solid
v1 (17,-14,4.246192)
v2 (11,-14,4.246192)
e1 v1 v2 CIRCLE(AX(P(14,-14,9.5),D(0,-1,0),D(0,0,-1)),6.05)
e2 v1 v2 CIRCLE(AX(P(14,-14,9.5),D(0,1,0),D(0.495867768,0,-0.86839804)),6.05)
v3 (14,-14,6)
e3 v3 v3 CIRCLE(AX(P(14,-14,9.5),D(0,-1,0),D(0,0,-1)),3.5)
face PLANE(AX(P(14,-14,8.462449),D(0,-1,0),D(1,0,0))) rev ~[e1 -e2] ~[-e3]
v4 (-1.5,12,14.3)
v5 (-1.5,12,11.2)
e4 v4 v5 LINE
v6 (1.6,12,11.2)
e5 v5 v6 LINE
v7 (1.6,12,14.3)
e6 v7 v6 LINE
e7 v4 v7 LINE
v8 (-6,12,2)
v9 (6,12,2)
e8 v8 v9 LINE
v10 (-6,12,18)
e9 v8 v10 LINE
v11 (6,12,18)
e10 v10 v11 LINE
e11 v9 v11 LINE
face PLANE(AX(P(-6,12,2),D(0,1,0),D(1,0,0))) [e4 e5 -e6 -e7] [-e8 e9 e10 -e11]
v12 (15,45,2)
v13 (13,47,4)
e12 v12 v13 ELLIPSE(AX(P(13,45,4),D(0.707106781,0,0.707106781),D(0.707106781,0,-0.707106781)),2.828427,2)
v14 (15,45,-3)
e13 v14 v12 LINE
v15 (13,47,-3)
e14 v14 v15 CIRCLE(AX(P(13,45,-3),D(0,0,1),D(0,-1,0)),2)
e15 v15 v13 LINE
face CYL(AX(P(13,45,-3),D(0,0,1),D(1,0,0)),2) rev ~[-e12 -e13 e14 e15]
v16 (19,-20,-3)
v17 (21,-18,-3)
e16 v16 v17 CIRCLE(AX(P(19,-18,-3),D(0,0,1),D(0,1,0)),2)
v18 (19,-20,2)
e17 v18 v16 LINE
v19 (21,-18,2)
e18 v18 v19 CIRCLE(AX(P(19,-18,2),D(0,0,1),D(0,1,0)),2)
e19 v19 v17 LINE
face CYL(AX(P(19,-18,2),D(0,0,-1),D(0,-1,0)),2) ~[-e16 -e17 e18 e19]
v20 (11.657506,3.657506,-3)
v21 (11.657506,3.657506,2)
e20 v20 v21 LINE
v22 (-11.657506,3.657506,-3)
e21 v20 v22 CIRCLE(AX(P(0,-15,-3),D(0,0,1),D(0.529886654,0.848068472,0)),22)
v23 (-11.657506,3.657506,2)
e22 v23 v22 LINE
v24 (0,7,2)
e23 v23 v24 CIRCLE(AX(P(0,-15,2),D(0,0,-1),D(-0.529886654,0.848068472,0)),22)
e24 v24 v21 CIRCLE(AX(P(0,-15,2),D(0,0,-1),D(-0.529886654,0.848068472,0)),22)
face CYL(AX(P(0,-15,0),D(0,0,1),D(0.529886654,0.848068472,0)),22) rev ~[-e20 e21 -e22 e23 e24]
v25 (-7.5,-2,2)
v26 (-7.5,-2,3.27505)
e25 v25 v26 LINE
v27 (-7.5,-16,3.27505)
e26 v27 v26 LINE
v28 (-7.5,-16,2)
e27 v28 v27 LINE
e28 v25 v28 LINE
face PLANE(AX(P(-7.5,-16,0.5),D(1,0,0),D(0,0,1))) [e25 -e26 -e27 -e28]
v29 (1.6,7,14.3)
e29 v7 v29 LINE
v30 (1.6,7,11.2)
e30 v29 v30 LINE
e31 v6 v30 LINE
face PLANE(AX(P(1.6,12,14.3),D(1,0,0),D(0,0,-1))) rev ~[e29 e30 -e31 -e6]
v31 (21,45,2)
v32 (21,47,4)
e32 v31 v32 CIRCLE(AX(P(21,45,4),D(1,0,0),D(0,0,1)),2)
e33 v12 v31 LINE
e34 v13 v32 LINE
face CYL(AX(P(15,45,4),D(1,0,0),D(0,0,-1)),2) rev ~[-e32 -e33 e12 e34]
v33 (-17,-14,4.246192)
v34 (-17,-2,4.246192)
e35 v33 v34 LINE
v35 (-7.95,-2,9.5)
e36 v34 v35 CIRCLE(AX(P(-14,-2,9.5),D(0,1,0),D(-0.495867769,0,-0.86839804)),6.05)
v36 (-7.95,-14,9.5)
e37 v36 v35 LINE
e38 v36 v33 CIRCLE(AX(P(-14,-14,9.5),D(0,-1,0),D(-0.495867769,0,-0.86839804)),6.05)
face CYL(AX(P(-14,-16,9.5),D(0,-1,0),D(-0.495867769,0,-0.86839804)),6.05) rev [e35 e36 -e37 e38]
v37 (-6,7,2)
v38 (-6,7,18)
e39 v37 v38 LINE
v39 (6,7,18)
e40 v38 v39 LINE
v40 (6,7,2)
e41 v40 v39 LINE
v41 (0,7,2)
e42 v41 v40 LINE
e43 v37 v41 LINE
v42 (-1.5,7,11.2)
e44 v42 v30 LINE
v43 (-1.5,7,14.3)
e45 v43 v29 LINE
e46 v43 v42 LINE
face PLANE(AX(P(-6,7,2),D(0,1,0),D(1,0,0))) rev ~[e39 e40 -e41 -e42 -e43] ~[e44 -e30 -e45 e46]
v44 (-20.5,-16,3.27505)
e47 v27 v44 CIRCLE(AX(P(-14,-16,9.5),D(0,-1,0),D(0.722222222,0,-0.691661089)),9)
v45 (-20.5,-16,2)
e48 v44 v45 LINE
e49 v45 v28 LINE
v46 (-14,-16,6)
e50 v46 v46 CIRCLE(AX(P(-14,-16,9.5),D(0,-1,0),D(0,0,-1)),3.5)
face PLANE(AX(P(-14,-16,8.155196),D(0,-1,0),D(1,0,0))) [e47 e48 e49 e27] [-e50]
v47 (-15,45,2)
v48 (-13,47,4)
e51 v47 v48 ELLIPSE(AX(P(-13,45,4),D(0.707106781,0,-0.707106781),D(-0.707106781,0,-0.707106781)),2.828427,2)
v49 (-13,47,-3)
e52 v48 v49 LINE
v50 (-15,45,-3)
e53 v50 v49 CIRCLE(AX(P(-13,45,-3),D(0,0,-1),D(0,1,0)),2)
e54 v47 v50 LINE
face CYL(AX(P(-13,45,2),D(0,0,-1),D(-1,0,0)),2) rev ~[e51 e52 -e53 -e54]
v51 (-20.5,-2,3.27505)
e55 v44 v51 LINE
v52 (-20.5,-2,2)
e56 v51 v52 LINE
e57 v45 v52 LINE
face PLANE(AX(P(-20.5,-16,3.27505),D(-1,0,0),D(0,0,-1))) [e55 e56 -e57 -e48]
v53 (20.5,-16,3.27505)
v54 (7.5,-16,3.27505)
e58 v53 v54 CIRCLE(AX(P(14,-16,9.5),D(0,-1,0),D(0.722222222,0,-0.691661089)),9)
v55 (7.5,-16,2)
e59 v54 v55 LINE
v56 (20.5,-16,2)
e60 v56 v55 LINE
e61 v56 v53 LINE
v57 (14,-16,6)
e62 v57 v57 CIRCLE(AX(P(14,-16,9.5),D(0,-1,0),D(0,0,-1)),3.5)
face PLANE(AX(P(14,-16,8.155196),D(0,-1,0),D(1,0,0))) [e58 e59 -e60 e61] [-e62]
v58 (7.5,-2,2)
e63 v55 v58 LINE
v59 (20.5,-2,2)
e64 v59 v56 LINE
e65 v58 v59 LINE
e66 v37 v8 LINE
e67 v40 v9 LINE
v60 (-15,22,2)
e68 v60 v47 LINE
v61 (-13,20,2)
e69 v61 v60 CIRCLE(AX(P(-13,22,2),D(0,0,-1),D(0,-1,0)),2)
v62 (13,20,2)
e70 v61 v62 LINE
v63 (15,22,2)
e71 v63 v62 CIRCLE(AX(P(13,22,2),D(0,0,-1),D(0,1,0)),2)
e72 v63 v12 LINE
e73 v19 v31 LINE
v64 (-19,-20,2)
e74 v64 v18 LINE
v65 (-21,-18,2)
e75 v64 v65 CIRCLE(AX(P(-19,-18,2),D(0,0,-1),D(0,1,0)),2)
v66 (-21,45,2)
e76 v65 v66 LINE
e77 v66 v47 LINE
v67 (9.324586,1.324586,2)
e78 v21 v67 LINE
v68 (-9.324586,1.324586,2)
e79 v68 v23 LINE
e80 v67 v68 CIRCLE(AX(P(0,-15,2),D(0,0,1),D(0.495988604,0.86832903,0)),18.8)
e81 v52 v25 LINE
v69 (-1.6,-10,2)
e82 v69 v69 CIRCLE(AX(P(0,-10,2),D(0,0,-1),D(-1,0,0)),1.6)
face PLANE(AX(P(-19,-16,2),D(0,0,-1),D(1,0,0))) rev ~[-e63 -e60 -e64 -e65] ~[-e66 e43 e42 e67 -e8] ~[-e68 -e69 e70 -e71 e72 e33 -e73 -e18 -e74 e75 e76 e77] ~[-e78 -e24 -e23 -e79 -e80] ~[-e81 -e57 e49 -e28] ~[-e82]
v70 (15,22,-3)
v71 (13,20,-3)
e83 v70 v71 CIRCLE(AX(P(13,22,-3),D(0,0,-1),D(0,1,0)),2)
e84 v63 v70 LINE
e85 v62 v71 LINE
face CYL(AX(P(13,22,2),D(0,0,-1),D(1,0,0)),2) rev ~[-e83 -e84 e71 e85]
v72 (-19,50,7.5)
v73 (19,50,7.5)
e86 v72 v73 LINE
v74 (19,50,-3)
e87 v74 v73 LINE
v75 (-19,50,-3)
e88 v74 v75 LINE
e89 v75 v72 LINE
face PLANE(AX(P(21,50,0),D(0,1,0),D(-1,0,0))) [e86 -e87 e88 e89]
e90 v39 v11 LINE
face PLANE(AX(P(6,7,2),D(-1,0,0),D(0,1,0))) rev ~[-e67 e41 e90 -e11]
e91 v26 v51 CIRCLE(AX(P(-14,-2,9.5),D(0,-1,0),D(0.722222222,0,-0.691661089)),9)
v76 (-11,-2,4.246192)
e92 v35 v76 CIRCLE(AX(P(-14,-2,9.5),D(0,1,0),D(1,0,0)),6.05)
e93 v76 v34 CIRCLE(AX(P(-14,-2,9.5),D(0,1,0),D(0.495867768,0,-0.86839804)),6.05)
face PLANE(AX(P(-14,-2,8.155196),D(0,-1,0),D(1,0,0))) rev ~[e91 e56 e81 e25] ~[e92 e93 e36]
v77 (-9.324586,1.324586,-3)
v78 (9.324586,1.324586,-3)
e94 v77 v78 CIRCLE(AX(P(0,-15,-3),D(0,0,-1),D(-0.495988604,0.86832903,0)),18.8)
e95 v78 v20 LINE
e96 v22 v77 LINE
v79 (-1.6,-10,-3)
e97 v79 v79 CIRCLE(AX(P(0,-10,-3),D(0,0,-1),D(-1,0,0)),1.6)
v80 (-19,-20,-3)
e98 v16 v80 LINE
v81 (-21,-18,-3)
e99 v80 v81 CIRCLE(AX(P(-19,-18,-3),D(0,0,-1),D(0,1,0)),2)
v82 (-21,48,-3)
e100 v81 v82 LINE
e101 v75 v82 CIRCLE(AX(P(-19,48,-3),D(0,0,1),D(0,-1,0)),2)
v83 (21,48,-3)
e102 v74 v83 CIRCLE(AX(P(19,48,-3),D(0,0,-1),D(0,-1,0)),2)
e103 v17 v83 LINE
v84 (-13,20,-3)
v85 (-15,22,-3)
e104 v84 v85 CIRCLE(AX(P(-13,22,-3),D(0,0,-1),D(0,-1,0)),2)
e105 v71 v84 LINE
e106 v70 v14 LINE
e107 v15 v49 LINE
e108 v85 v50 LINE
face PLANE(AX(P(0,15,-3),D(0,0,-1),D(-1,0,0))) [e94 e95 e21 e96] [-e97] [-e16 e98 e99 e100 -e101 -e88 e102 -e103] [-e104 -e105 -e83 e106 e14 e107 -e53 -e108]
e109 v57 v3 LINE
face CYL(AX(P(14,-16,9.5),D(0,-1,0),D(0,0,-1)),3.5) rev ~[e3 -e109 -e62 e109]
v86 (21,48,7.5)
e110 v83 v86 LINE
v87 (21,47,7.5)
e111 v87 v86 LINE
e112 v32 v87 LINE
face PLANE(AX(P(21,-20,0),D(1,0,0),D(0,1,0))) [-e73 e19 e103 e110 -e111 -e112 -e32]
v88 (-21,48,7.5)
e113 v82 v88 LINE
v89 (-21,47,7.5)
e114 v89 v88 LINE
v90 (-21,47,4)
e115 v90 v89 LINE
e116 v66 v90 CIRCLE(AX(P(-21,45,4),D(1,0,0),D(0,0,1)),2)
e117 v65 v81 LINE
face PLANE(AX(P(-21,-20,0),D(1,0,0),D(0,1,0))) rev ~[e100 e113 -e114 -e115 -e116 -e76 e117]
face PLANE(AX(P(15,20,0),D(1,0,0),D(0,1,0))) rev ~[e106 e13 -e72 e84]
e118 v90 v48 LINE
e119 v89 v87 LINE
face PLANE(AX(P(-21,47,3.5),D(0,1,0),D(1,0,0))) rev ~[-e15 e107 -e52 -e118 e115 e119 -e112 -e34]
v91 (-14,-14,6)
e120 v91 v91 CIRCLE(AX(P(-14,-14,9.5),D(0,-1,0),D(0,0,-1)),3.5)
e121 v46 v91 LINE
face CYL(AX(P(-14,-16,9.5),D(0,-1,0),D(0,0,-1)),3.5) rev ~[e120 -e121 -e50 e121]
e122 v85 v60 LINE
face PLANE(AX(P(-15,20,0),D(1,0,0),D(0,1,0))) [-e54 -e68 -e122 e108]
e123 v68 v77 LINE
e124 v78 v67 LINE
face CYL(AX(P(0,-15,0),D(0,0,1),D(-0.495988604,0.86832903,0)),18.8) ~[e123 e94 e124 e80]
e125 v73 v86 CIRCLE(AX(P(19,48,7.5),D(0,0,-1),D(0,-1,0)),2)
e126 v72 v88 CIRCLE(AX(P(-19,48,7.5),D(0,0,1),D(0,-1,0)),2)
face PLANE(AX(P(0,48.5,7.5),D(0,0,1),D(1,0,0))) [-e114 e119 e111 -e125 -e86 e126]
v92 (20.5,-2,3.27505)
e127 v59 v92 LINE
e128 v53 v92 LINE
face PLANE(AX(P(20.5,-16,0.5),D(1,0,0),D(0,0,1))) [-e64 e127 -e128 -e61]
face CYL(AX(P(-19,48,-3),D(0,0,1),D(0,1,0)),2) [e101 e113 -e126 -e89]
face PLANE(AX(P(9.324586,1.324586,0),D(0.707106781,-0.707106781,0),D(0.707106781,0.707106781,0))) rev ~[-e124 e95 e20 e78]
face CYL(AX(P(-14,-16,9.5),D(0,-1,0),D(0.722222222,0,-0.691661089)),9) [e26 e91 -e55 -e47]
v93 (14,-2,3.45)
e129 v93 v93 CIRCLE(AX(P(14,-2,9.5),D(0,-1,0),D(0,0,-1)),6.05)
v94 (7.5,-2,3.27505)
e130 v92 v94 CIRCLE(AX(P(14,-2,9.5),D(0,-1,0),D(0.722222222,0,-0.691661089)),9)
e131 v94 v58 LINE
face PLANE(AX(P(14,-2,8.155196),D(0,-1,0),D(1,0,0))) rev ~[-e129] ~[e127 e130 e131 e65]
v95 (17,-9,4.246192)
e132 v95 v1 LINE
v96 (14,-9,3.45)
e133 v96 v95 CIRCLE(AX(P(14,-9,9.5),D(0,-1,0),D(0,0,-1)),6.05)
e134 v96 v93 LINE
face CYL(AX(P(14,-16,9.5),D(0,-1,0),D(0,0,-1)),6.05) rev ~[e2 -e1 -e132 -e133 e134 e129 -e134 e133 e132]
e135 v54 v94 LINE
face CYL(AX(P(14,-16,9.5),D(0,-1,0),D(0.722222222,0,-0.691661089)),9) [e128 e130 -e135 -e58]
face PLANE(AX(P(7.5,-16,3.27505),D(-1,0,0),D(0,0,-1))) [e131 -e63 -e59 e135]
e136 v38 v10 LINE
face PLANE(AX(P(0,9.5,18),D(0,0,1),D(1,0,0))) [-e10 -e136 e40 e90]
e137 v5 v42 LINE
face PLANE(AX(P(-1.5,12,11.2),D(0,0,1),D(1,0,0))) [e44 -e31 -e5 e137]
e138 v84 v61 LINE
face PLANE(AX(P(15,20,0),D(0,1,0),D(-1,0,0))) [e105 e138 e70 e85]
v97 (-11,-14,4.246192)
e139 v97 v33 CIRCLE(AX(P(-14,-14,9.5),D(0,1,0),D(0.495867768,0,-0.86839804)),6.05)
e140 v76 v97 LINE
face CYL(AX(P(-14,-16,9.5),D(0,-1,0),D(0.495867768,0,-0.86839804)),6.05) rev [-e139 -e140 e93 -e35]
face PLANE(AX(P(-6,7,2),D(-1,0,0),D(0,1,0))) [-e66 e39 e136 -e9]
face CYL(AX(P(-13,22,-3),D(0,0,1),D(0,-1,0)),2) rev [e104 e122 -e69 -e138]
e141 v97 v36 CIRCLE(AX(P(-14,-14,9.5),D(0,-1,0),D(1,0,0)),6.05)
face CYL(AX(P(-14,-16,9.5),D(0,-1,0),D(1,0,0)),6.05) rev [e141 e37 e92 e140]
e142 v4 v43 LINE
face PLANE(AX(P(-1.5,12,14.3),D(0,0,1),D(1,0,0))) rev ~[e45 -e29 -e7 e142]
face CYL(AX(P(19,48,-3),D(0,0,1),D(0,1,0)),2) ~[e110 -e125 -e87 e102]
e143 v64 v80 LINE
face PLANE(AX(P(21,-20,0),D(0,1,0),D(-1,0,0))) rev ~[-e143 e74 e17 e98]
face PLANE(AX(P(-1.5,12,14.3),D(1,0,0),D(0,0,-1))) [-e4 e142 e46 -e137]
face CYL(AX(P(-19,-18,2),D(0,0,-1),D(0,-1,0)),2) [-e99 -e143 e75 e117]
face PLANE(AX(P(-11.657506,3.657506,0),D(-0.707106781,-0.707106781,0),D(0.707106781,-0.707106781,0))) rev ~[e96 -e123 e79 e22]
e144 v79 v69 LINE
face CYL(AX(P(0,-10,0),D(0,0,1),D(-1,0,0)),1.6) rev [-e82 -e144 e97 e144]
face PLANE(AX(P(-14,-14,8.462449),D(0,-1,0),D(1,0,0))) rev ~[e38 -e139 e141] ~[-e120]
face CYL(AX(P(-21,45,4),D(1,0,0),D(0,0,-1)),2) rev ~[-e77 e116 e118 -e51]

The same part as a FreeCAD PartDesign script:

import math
import FreeCAD as App
import Part
import Sketcher


def edges_at(feature, points):
    """Names of the edges that pass closest to the given points."""
    edges = feature.Shape.Edges
    near = lambda p: min(range(len(edges)), key=lambda i: edges[i].distToShape(Part.Vertex(*p))[0])
    return sorted({f"Edge{near(p) + 1}" for p in points})


def add_polygon(sketch, points):
    """Adds a closed chain of lines whose ends are joined by coincident constraints."""
    first, n = sketch.GeometryCount, len(points)
    for a, b in zip(points, points[1:] + points[:1]):
        sketch.addGeometry(Part.LineSegment(App.Vector(*a, 0), App.Vector(*b, 0)), False)
    for i in range(n):
        sketch.addConstraint(Sketcher.Constraint("Coincident", first + i, 2, first + (i + 1) % n, 1))

doc = App.newDocument("Part")
body = doc.addObject("PartDesign::Body", "Body")

sketch1 = body.newObject("Sketcher::SketchObject", "Sketch")
sketch1.AttachmentSupport = (doc.getObject("XY_Plane"), [""])
sketch1.MapMode = "FlatFace"
add_polygon(sketch1, [(-21, 20), (-21, -20), (21, -20), (21, 20)])
sketch1.addConstraint([
    Sketcher.Constraint("Vertical", 0),
    Sketcher.Constraint("Horizontal", 1),
    Sketcher.Constraint("Vertical", 2),
    Sketcher.Constraint("Horizontal", 3),
    Sketcher.Constraint("Symmetric", 0, 2, 2, 2, -1, 1),
    Sketcher.Constraint("DistanceX", 1, 1, 1, 2, 42.0),
    Sketcher.Constraint("DistanceY", 0, 2, 0, 1, 40.0),
])
pad1 = body.newObject("PartDesign::Pad", "Pad")
pad1.Profile = sketch1
pad1.Length = 2

sketch2 = body.newObject("Sketcher::SketchObject", "Sketch001")
sketch2.AttachmentSupport = (doc.getObject("XY_Plane"), [""])
sketch2.MapMode = "FlatFace"
sketch2.AttachmentOffset = App.Placement(App.Vector(0, 0, 2), App.Rotation())
add_polygon(sketch2, [(-17, 12), (-17, 8), (-11, 8), (-11, 12)])
sketch2.addConstraint([
    Sketcher.Constraint("Vertical", 0),
    Sketcher.Constraint("Horizontal", 1),
    Sketcher.Constraint("Vertical", 2),
    Sketcher.Constraint("Horizontal", 3),
    Sketcher.Constraint("DistanceX", 1, 1, 1, 2, 6.0),
    Sketcher.Constraint("DistanceY", 0, 2, 0, 1, 4.0),
    Sketcher.Constraint("DistanceX", 0, 2, -1, 1, 17.0),
    Sketcher.Constraint("DistanceY", -1, 1, 0, 2, 8.0),
])
pad2 = body.newObject("PartDesign::Pad", "Pad001")
pad2.Profile = sketch2
pad2.Length = 3

sketch3 = body.newObject("Sketcher::SketchObject", "Sketch002")
sketch3.AttachmentSupport = (doc.getObject("XZ_Plane"), [""])
sketch3.MapMode = "FlatFace"
sketch3.AttachmentOffset = App.Placement(App.Vector(0, 0, -12), App.Rotation())
sketch3.addGeometry([
    Part.Circle(App.Vector(-14, 6.6, 0), App.Vector(0, 0, 1), 3.5),
    Part.Circle(App.Vector(-14, 6.6, 0), App.Vector(0, 0, 1), 1.6),
], False)
sketch3.addConstraint([
    Sketcher.Constraint("Coincident", 1, 3, 0, 3),
    Sketcher.Constraint("Diameter", 0, 7.0),
    Sketcher.Constraint("Diameter", 1, 3.2),
    Sketcher.Constraint("DistanceX", 0, 3, -1, 1, 14.0),
    Sketcher.Constraint("DistanceY", -1, 1, 0, 3, 6.6),
])
pad3 = body.newObject("PartDesign::Pad", "Pad002")
pad3.Profile = sketch3
pad3.Length = 4
doc.recompute()

mirrored = body.newObject("PartDesign::Mirrored", "Mirrored")
mirrored.Originals = [pad2, pad3]
mirrored.MirrorPlane = (doc.getObject("YZ_Plane"), [""])
body.Tip = mirrored
doc.recompute()

datumplane = body.newObject("PartDesign::Plane", "DatumPlane")
datumplane.AttachmentSupport = (doc.getObject("XZ_Plane"), [""])
datumplane.MapMode = "FlatFace"
datumplane.AttachmentOffset = App.Placement(App.Vector(0, 0, -3), App.Rotation())
mirrored2 = body.newObject("PartDesign::Mirrored", "Mirrored001")
mirrored2.Originals = [pad2, pad3]
mirrored2.MirrorPlane = (datumplane, [""])
body.Tip = mirrored2

sketch4 = body.newObject("Sketcher::SketchObject", "Sketch003")
sketch4.AttachmentSupport = (doc.getObject("XY_Plane"), [""])
sketch4.MapMode = "FlatFace"
sketch4.AttachmentOffset = App.Placement(App.Vector(0, 0, 2), App.Rotation())
add_polygon(sketch4, [(17, -6), (17, -2), (11, -2), (11, -6)])
sketch4.addConstraint([
    Sketcher.Constraint("Vertical", 0),
    Sketcher.Constraint("Horizontal", 1),
    Sketcher.Constraint("Vertical", 2),
    Sketcher.Constraint("Horizontal", 3),
    Sketcher.Constraint("DistanceX", 1, 2, 1, 1, 6.0),
    Sketcher.Constraint("DistanceY", 0, 1, 0, 2, 4.0),
    Sketcher.Constraint("DistanceX", -1, 1, 0, 2, 17.0),
    Sketcher.Constraint("DistanceY", 0, 2, -1, 1, 2.0),
])
pad4 = body.newObject("PartDesign::Pad", "Pad003")
pad4.Profile = sketch4
pad4.Length = 3

sketch5 = body.newObject("Sketcher::SketchObject", "Sketch004")
sketch5.AttachmentSupport = (doc.getObject("XZ_Plane"), [""])
sketch5.MapMode = "FlatFace"
sketch5.AttachmentOffset = App.Placement(App.Vector(0, 0, 6), App.Rotation())
sketch5.addGeometry([
    Part.Circle(App.Vector(14, 6.6, 0), App.Vector(0, 0, 1), 3.5),
    Part.Circle(App.Vector(14, 6.6, 0), App.Vector(0, 0, 1), 1.6),
], False)
sketch5.addConstraint([
    Sketcher.Constraint("Coincident", 1, 3, 0, 3),
    Sketcher.Constraint("Diameter", 0, 7.0),
    Sketcher.Constraint("Diameter", 1, 3.2),
    Sketcher.Constraint("DistanceX", -1, 1, 0, 3, 14.0),
    Sketcher.Constraint("DistanceY", -1, 1, 0, 3, 6.6),
])
pad5 = body.newObject("PartDesign::Pad", "Pad004")
pad5.Profile = sketch5
pad5.Length = 4
pad5.Reversed = True

sketch6 = body.newObject("Sketcher::SketchObject", "Sketch005")
sketch6.AttachmentSupport = (doc.getObject("XY_Plane"), [""])
sketch6.MapMode = "FlatFace"
sketch6.AttachmentOffset = App.Placement(App.Vector(0, 0, 2), App.Rotation())
sketch6.addGeometry([
    Part.ArcOfCircle(Part.Circle(App.Vector(0, -15, 0), App.Vector(0, 0, 1), 18.8), math.radians(60), math.radians(120)),
    Part.LineSegment(App.Vector(9.3, 1.3, 0), App.Vector(11.7, 3.7, 0)),
    Part.ArcOfCircle(Part.Circle(App.Vector(0, -15, 0), App.Vector(0, 0, 1), 22), math.radians(58), math.radians(122)),
    Part.LineSegment(App.Vector(-11.7, 3.7, 0), App.Vector(-9.3, 1.3, 0)),
], False)
sketch6.addConstraint([
    Sketcher.Constraint("Coincident", 0, 1, 1, 1),
    Sketcher.Constraint("Coincident", 1, 2, 2, 1),
    Sketcher.Constraint("Coincident", 2, 2, 3, 1),
    Sketcher.Constraint("Coincident", 3, 2, 0, 2),
    Sketcher.Constraint("Coincident", 2, 3, 0, 3),
    Sketcher.Constraint("Symmetric", 1, 2, 2, 2, -2),
    Sketcher.Constraint("Perpendicular", 1, 3),
    Sketcher.Constraint("Horizontal", 0, 1, 3, 2),
    Sketcher.Constraint("Radius", 2, 22.0),
    Sketcher.Constraint("Radius", 0, 18.8),
    Sketcher.Constraint("DistanceY", 0, 3, -1, 1, 15.0),
    Sketcher.Constraint("DistanceX", 3, 2, 0, 1, 18.649172),
])
pocket1 = body.newObject("PartDesign::Pocket", "Pocket")
pocket1.Profile = sketch6
pocket1.Length = 2

sketch7 = body.newObject("Sketcher::SketchObject", "Sketch006")
sketch7.AttachmentSupport = (doc.getObject("XY_Plane"), [""])
sketch7.MapMode = "FlatFace"
sketch7.addGeometry(Part.Circle(App.Vector(0, -10, 0), App.Vector(0, 0, 1), 1.6), False)
sketch7.addConstraint([
    Sketcher.Constraint("PointOnObject", 0, 3, -2),
    Sketcher.Constraint("Diameter", 0, 3.2),
    Sketcher.Constraint("DistanceY", 0, 3, -1, 1, 10.0),
])
pocket2 = body.newObject("PartDesign::Pocket", "Pocket001")
pocket2.Profile = sketch7
pocket2.Length = 2
pocket2.Reversed = True

sketch8 = body.newObject("Sketcher::SketchObject", "Sketch007")
sketch8.AttachmentSupport = (doc.getObject("XZ_Plane"), [""])
sketch8.MapMode = "FlatFace"
sketch8.AttachmentOffset = App.Placement(App.Vector(0, 0, -20), App.Rotation())
add_polygon(sketch8, [(-21, 0), (-21, 2), (-15, 2), (-15, 0)])
add_polygon(sketch8, [(15, 0), (15, 2), (21, 2), (21, 0)])
sketch8.addConstraint([
    Sketcher.Constraint("Vertical", 0),
    Sketcher.Constraint("Horizontal", 1),
    Sketcher.Constraint("Vertical", 2),
    Sketcher.Constraint("Horizontal", 3),
    Sketcher.Constraint("Vertical", 4),
    Sketcher.Constraint("Horizontal", 5),
    Sketcher.Constraint("Vertical", 6),
    Sketcher.Constraint("Horizontal", 7),
    Sketcher.Constraint("Symmetric", 3, 2, 6, 2, -1, 1),
    Sketcher.Constraint("Symmetric", 1, 2, 4, 2, -2),
    Sketcher.Constraint("PointOnObject", 2, 2, -1),
    Sketcher.Constraint("DistanceX", 1, 1, 1, 2, 6.0),
    Sketcher.Constraint("DistanceY", 0, 1, 0, 2, 2.0),
    Sketcher.Constraint("DistanceX", 0, 2, -1, 1, 21.0),
])
pad6 = body.newObject("PartDesign::Pad", "Pad005")
pad6.Profile = sketch8
pad6.Length = 30
pad6.Reversed = True

sketch9 = body.newObject("Sketcher::SketchObject", "Sketch008")
sketch9.AttachmentSupport = (doc.getObject("XZ_Plane"), [""])
sketch9.MapMode = "FlatFace"
sketch9.AttachmentOffset = App.Placement(App.Vector(0, 0, -50), App.Rotation())
add_polygon(sketch9, [(-21, 0), (-21, 3.5), (21, 3.5), (21, 0)])
sketch9.addConstraint([
    Sketcher.Constraint("Vertical", 0),
    Sketcher.Constraint("Horizontal", 1),
    Sketcher.Constraint("Vertical", 2),
    Sketcher.Constraint("Horizontal", 3),
    Sketcher.Constraint("Symmetric", 2, 2, 3, 2, -1, 1),
    Sketcher.Constraint("DistanceX", 1, 1, 1, 2, 42.0),
    Sketcher.Constraint("DistanceY", 0, 1, 0, 2, 3.5),
])
pad7 = body.newObject("PartDesign::Pad", "Pad006")
pad7.Profile = sketch9
pad7.Length = 3

sketch10 = body.newObject("Sketcher::SketchObject", "Sketch009")
sketch10.AttachmentSupport = (doc.getObject("XZ_Plane"), [""])
sketch10.MapMode = "FlatFace"
sketch10.AttachmentOffset = App.Placement(App.Vector(0, 0, 6), App.Rotation())
sketch10.addGeometry([
    Part.LineSegment(App.Vector(-11, 2, 0), App.Vector(-11, 4.8, 0)),
    Part.ArcOfCircle(Part.Circle(App.Vector(-14, 6.6, 0), App.Vector(0, 0, 1), 3.5), math.radians(-31), math.radians(211)),
    Part.LineSegment(App.Vector(-17, 4.8, 0), App.Vector(-17, 2, 0)),
    Part.LineSegment(App.Vector(-17, 2, 0), App.Vector(-11, 2, 0)),
    Part.Circle(App.Vector(-14, 6.6, 0), App.Vector(0, 0, 1), 1.6),
    Part.LineSegment(App.Vector(11, 4.8, 0), App.Vector(11, 2, 0)),
    Part.LineSegment(App.Vector(11, 2, 0), App.Vector(17, 2, 0)),
    Part.LineSegment(App.Vector(17, 2, 0), App.Vector(17, 4.8, 0)),
    Part.ArcOfCircle(Part.Circle(App.Vector(14, 6.6, 0), App.Vector(0, 0, 1), 3.5), math.radians(-31), math.radians(211)),
    Part.Circle(App.Vector(14, 6.6, 0), App.Vector(0, 0, 1), 1.6),
], False)
sketch10.addConstraint([
    Sketcher.Constraint("Coincident", 0, 2, 1, 1),
    Sketcher.Constraint("Coincident", 1, 2, 2, 1),
    Sketcher.Constraint("Coincident", 2, 2, 3, 1),
    Sketcher.Constraint("Coincident", 3, 2, 0, 1),
    Sketcher.Constraint("Coincident", 5, 2, 6, 1),
    Sketcher.Constraint("Coincident", 6, 2, 7, 1),
    Sketcher.Constraint("Coincident", 7, 2, 8, 1),
    Sketcher.Constraint("Coincident", 8, 2, 5, 1),
    Sketcher.Constraint("Vertical", 0),
    Sketcher.Constraint("Vertical", 2),
    Sketcher.Constraint("Horizontal", 3),
    Sketcher.Constraint("Vertical", 5),
    Sketcher.Constraint("Horizontal", 6),
    Sketcher.Constraint("Vertical", 7),
    Sketcher.Constraint("Coincident", 4, 3, 1, 3),
    Sketcher.Constraint("Coincident", 9, 3, 8, 3),
    Sketcher.Constraint("Equal", 1, 8),
    Sketcher.Constraint("Equal", 4, 9),
    Sketcher.Constraint("Symmetric", 1, 3, 8, 3, -2),
    Sketcher.Constraint("Symmetric", 3, 2, 5, 2, -2),
    Sketcher.Constraint("Horizontal", 0, 2, 1, 2),
    Sketcher.Constraint("Horizontal", 1, 2, 7, 2),
    Sketcher.Constraint("Diameter", 4, 3.2),
    Sketcher.Constraint("Radius", 1, 3.5),
    Sketcher.Constraint("DistanceX", 3, 1, 3, 2, 6.0),
    Sketcher.Constraint("DistanceX", 1, 3, -1, 1, 14.0),
    Sketcher.Constraint("DistanceY", -1, 1, 2, 2, 2.0),
    Sketcher.Constraint("DistanceY", -1, 1, 1, 3, 6.6),
])
pad8 = body.newObject("PartDesign::Pad", "Pad007")
pad8.Profile = sketch10
pad8.Length = 10

sketch11 = body.newObject("Sketcher::SketchObject", "Sketch010")
sketch11.AttachmentSupport = (doc.getObject("XZ_Plane"), [""])
sketch11.MapMode = "FlatFace"
sketch11.AttachmentOffset = App.Placement(App.Vector(0, 0, 2), App.Rotation())
sketch11.addGeometry([
    Part.LineSegment(App.Vector(11, 2, 0), App.Vector(11, 4.8, 0)),
    Part.ArcOfCircle(Part.Circle(App.Vector(14, 6.6, 0), App.Vector(0, 0, 1), 3.5), math.radians(-31), math.radians(211)),
    Part.LineSegment(App.Vector(17, 4.8, 0), App.Vector(17, 2, 0)),
    Part.LineSegment(App.Vector(17, 2, 0), App.Vector(11, 2, 0)),
    Part.Circle(App.Vector(14, 6.6, 0), App.Vector(0, 0, 1), 1.6),
    Part.LineSegment(App.Vector(-11, 4.8, 0), App.Vector(-11, 2, 0)),
    Part.LineSegment(App.Vector(-11, 2, 0), App.Vector(-17, 2, 0)),
    Part.LineSegment(App.Vector(-17, 2, 0), App.Vector(-17, 4.8, 0)),
    Part.ArcOfCircle(Part.Circle(App.Vector(-14, 6.6, 0), App.Vector(0, 0, 1), 3.5), math.radians(-31), math.radians(211)),
    Part.Circle(App.Vector(-14, 6.6, 0), App.Vector(0, 0, 1), 1.6),
], False)
sketch11.addConstraint([
    Sketcher.Constraint("Coincident", 0, 2, 1, 2),
    Sketcher.Constraint("Coincident", 1, 1, 2, 1),
    Sketcher.Constraint("Coincident", 2, 2, 3, 1),
    Sketcher.Constraint("Coincident", 3, 2, 0, 1),
    Sketcher.Constraint("Coincident", 5, 2, 6, 1),
    Sketcher.Constraint("Coincident", 6, 2, 7, 1),
    Sketcher.Constraint("Coincident", 7, 2, 8, 2),
    Sketcher.Constraint("Coincident", 8, 1, 5, 1),
    Sketcher.Constraint("Vertical", 0),
    Sketcher.Constraint("Vertical", 2),
    Sketcher.Constraint("Horizontal", 3),
    Sketcher.Constraint("Vertical", 5),
    Sketcher.Constraint("Horizontal", 6),
    Sketcher.Constraint("Vertical", 7),
    Sketcher.Constraint("Coincident", 4, 3, 1, 3),
    Sketcher.Constraint("Coincident", 9, 3, 8, 3),
    Sketcher.Constraint("Equal", 1, 8),
    Sketcher.Constraint("Equal", 4, 9),
    Sketcher.Constraint("Symmetric", 1, 3, 8, 3, -2),
    Sketcher.Constraint("Symmetric", 3, 2, 5, 2, -2),
    Sketcher.Constraint("Horizontal", 0, 2, 1, 1),
    Sketcher.Constraint("Horizontal", 1, 1, 7, 2),
    Sketcher.Constraint("Diameter", 4, 3.2),
    Sketcher.Constraint("Radius", 1, 3.5),
    Sketcher.Constraint("DistanceX", 3, 2, 3, 1, 6.0),
    Sketcher.Constraint("DistanceX", -1, 1, 1, 3, 14.0),
    Sketcher.Constraint("DistanceY", -1, 1, 2, 2, 2.0),
    Sketcher.Constraint("DistanceY", -1, 1, 1, 3, 6.6),
])
pocket3 = body.newObject("PartDesign::Pocket", "Pocket002")
pocket3.Profile = sketch11
pocket3.Length = 7
pocket3.Reversed = True

sketch12 = body.newObject("Sketcher::SketchObject", "Sketch011")
sketch12.AttachmentSupport = (doc.getObject("XZ_Plane"), [""])
sketch12.MapMode = "FlatFace"
sketch12.AttachmentOffset = App.Placement(App.Vector(0, 0, 16), App.Rotation())
sketch12.addGeometry([
    Part.LineSegment(App.Vector(-19, 2, 0), App.Vector(-9, 2, 0)),
    Part.LineSegment(App.Vector(-9, 2, 0), App.Vector(-9, 3.9, 0)),
    Part.ArcOfCircle(Part.Circle(App.Vector(-14, 9.5, 0), App.Vector(0, 0, 1), 7.5), math.radians(-48), math.radians(228)),
    Part.LineSegment(App.Vector(-19, 3.9, 0), App.Vector(-19, 2, 0)),
    Part.ArcOfCircle(Part.Circle(App.Vector(-14, 9.5, 0), App.Vector(0, 0, 1), 6), math.radians(0), math.radians(240)),
    Part.ArcOfCircle(Part.Circle(App.Vector(-14, 9.5, 0), App.Vector(0, 0, 1), 6.1), math.radians(-60), math.radians(0)),
    Part.ArcOfCircle(Part.Circle(App.Vector(-14, 9.5, 0), App.Vector(0, 0, 1), 6.1), math.radians(-120), math.radians(-60)),
    Part.ArcOfCircle(Part.Circle(App.Vector(14, 9.5, 0), App.Vector(0, 0, 1), 7.5), math.radians(-48), math.radians(228)),
    Part.LineSegment(App.Vector(9, 3.9, 0), App.Vector(9, 2, 0)),
    Part.LineSegment(App.Vector(9, 2, 0), App.Vector(19, 2, 0)),
    Part.LineSegment(App.Vector(19, 2, 0), App.Vector(19, 3.9, 0)),
    Part.Circle(App.Vector(14, 9.5, 0), App.Vector(0, 0, 1), 6),
], False)
sketch12.addConstraint([
    Sketcher.Constraint("Coincident", 0, 2, 1, 1),
    Sketcher.Constraint("Coincident", 1, 2, 2, 1),
    Sketcher.Constraint("Coincident", 2, 2, 3, 1),
    Sketcher.Constraint("Coincident", 3, 2, 0, 1),
    Sketcher.Constraint("Tangent", 4, 1, 5, 2),
    Sketcher.Constraint("Tangent", 5, 1, 6, 2),
    Sketcher.Constraint("Tangent", 6, 1, 4, 2),
    Sketcher.Constraint("Coincident", 7, 2, 8, 1),
    Sketcher.Constraint("Coincident", 8, 2, 9, 1),
    Sketcher.Constraint("Coincident", 9, 2, 10, 1),
    Sketcher.Constraint("Coincident", 10, 2, 7, 1),
    Sketcher.Constraint("Horizontal", 0),
    Sketcher.Constraint("Vertical", 1),
    Sketcher.Constraint("Vertical", 3),
    Sketcher.Constraint("Vertical", 8),
    Sketcher.Constraint("Horizontal", 9),
    Sketcher.Constraint("Vertical", 10),
    Sketcher.Constraint("Coincident", 4, 3, 2, 3),
    Sketcher.Constraint("Coincident", 11, 3, 7, 3),
    Sketcher.Constraint("Equal", 2, 7),
    Sketcher.Constraint("Equal", 6, 11),
    Sketcher.Constraint("Symmetric", 2, 3, 7, 3, -2),
    Sketcher.Constraint("Symmetric", 0, 2, 8, 2, -2),
    Sketcher.Constraint("Horizontal", 1, 2, 2, 2),
    Sketcher.Constraint("Horizontal", 11, 3, 4, 1),
    Sketcher.Constraint("Horizontal", 5, 1, 6, 1),
    Sketcher.Constraint("Horizontal", 7, 2, 10, 2),
    Sketcher.Constraint("Diameter", 11, 12.1),
    Sketcher.Constraint("Radius", 2, 7.5),
    Sketcher.Constraint("DistanceX", 0, 1, 0, 2, 10.0),
    Sketcher.Constraint("DistanceX", 2, 3, -1, 1, 14.0),
    Sketcher.Constraint("DistanceY", -1, 1, 0, 2, 2.0),
    Sketcher.Constraint("DistanceX", 5, 1, -1, 1, 11.0),
    Sketcher.Constraint("DistanceY", -1, 1, 2, 3, 9.5),
])
pad9 = body.newObject("PartDesign::Pad", "Pad008")
pad9.Profile = sketch12
pad9.Length = 14
pad9.Reversed = True

sketch13 = body.newObject("Sketcher::SketchObject", "Sketch012")
sketch13.AttachmentSupport = (doc.getObject("XZ_Plane"), [""])
sketch13.MapMode = "FlatFace"
sketch13.AttachmentOffset = App.Placement(App.Vector(0, 0, -12), App.Rotation())
sketch13.addGeometry([
    Part.LineSegment(App.Vector(11, 2, 0), App.Vector(11, 4.8, 0)),
    Part.ArcOfCircle(Part.Circle(App.Vector(14, 6.6, 0), App.Vector(0, 0, 1), 3.5), math.radians(-31), math.radians(211)),
    Part.LineSegment(App.Vector(17, 4.8, 0), App.Vector(17, 2, 0)),
    Part.LineSegment(App.Vector(17, 2, 0), App.Vector(11, 2, 0)),
    Part.Circle(App.Vector(14, 6.6, 0), App.Vector(0, 0, 1), 1.6),
    Part.LineSegment(App.Vector(-11, 4.8, 0), App.Vector(-11, 2, 0)),
    Part.LineSegment(App.Vector(-11, 2, 0), App.Vector(-17, 2, 0)),
    Part.LineSegment(App.Vector(-17, 2, 0), App.Vector(-17, 4.8, 0)),
    Part.ArcOfCircle(Part.Circle(App.Vector(-14, 6.6, 0), App.Vector(0, 0, 1), 3.5), math.radians(-31), math.radians(211)),
    Part.Circle(App.Vector(-14, 6.6, 0), App.Vector(0, 0, 1), 1.6),
], False)
sketch13.addConstraint([
    Sketcher.Constraint("Coincident", 0, 2, 1, 2),
    Sketcher.Constraint("Coincident", 1, 1, 2, 1),
    Sketcher.Constraint("Coincident", 2, 2, 3, 1),
    Sketcher.Constraint("Coincident", 3, 2, 0, 1),
    Sketcher.Constraint("Coincident", 5, 2, 6, 1),
    Sketcher.Constraint("Coincident", 6, 2, 7, 1),
    Sketcher.Constraint("Coincident", 7, 2, 8, 2),
    Sketcher.Constraint("Coincident", 8, 1, 5, 1),
    Sketcher.Constraint("Vertical", 0),
    Sketcher.Constraint("Vertical", 2),
    Sketcher.Constraint("Horizontal", 3),
    Sketcher.Constraint("Vertical", 5),
    Sketcher.Constraint("Horizontal", 6),
    Sketcher.Constraint("Vertical", 7),
    Sketcher.Constraint("Coincident", 4, 3, 1, 3),
    Sketcher.Constraint("Coincident", 9, 3, 8, 3),
    Sketcher.Constraint("Equal", 1, 8),
    Sketcher.Constraint("Equal", 4, 9),
    Sketcher.Constraint("Symmetric", 1, 3, 8, 3, -2),
    Sketcher.Constraint("Symmetric", 3, 2, 5, 2, -2),
    Sketcher.Constraint("Horizontal", 0, 2, 1, 1),
    Sketcher.Constraint("Horizontal", 1, 1, 7, 2),
    Sketcher.Constraint("Diameter", 4, 3.2),
    Sketcher.Constraint("Radius", 1, 3.5),
    Sketcher.Constraint("DistanceX", 3, 2, 3, 1, 6.0),
    Sketcher.Constraint("DistanceX", -1, 1, 1, 3, 14.0),
    Sketcher.Constraint("DistanceY", -1, 1, 2, 2, 2.0),
    Sketcher.Constraint("DistanceY", -1, 1, 1, 3, 6.6),
])
pocket4 = body.newObject("PartDesign::Pocket", "Pocket003")
pocket4.Profile = sketch13
pocket4.Length = 10
pocket4.Reversed = True

sketch14 = body.newObject("Sketcher::SketchObject", "Sketch013")
sketch14.AttachmentSupport = (doc.getObject("XZ_Plane"), [""])
sketch14.MapMode = "FlatFace"
sketch14.AttachmentOffset = App.Placement(App.Vector(0, 0, 9), App.Rotation())
sketch14.addGeometry([
    Part.LineSegment(App.Vector(11, 4.2, 0), App.Vector(11, 4.8, 0)),
    Part.ArcOfCircle(Part.Circle(App.Vector(14, 6.6, 0), App.Vector(0, 0, 1), 3.5), math.radians(-31), math.radians(211)),
    Part.LineSegment(App.Vector(17, 4.8, 0), App.Vector(17, 4.2, 0)),
    Part.ArcOfCircle(Part.Circle(App.Vector(14, 9.5, 0), App.Vector(0, 0, 1), 6.1), math.radians(-120), math.radians(-60)),
    Part.LineSegment(App.Vector(-11, 4.8, 0), App.Vector(-11, 4.2, 0)),
    Part.ArcOfCircle(Part.Circle(App.Vector(-14, 9.5, 0), App.Vector(0, 0, 1), 6.1), math.radians(-120), math.radians(-60)),
    Part.LineSegment(App.Vector(-17, 4.2, 0), App.Vector(-17, 4.8, 0)),
    Part.ArcOfCircle(Part.Circle(App.Vector(-14, 6.6, 0), App.Vector(0, 0, 1), 3.5), math.radians(-31), math.radians(211)),
], False)
sketch14.addConstraint([
    Sketcher.Constraint("Coincident", 0, 2, 1, 2),
    Sketcher.Constraint("Coincident", 1, 1, 2, 1),
    Sketcher.Constraint("Coincident", 2, 2, 3, 2),
    Sketcher.Constraint("Coincident", 3, 1, 0, 1),
    Sketcher.Constraint("Coincident", 4, 2, 5, 2),
    Sketcher.Constraint("Coincident", 5, 1, 6, 1),
    Sketcher.Constraint("Coincident", 6, 2, 7, 2),
    Sketcher.Constraint("Coincident", 7, 1, 4, 1),
    Sketcher.Constraint("Vertical", 0),
    Sketcher.Constraint("Vertical", 2),
    Sketcher.Constraint("Vertical", 4),
    Sketcher.Constraint("Vertical", 6),
    Sketcher.Constraint("Equal", 3, 5),
    Sketcher.Constraint("Equal", 1, 7),
    Sketcher.Constraint("Symmetric", 3, 3, 5, 3, -2),
    Sketcher.Constraint("Symmetric", 1, 3, 7, 3, -2),
    Sketcher.Constraint("Horizontal", 0, 2, 1, 1),
    Sketcher.Constraint("Horizontal", 2, 2, 3, 1),
    Sketcher.Constraint("Horizontal", 3, 1, 4, 2),
    Sketcher.Constraint("Horizontal", 4, 2, 5, 1),
    Sketcher.Constraint("Radius", 1, 3.5),
    Sketcher.Constraint("Radius", 3, 6.05),
    Sketcher.Constraint("DistanceX", -1, 1, 1, 3, 14.0),
    Sketcher.Constraint("DistanceX", -1, 1, 0, 2, 11.0),
    Sketcher.Constraint("DistanceY", -1, 1, 1, 3, 6.6),
    Sketcher.Constraint("DistanceY", -1, 1, 3, 3, 9.5),
])
pocket5 = body.newObject("PartDesign::Pocket", "Pocket004")
pocket5.Profile = sketch14
pocket5.Length = 22
pocket5.Reversed = True

sketch15 = body.newObject("Sketcher::SketchObject", "Sketch014")
sketch15.AttachmentSupport = (doc.getObject("XZ_Plane"), [""])
sketch15.MapMode = "FlatFace"
sketch15.AttachmentOffset = App.Placement(App.Vector(0, 0, 16), App.Rotation())
sketch15.addGeometry([
    Part.LineSegment(App.Vector(-19, 2, 0), App.Vector(-9, 2, 0)),
    Part.LineSegment(App.Vector(-9, 2, 0), App.Vector(-9, 3.9, 0)),
    Part.ArcOfCircle(Part.Circle(App.Vector(-14, 9.5, 0), App.Vector(0, 0, 1), 7.5), math.radians(-48), math.radians(228)),
    Part.LineSegment(App.Vector(-19, 3.9, 0), App.Vector(-19, 2, 0)),
    Part.LineSegment(App.Vector(9, 3.9, 0), App.Vector(9, 2, 0)),
    Part.LineSegment(App.Vector(9, 2, 0), App.Vector(19, 2, 0)),
    Part.LineSegment(App.Vector(19, 2, 0), App.Vector(19, 3.9, 0)),
    Part.ArcOfCircle(Part.Circle(App.Vector(14, 9.5, 0), App.Vector(0, 0, 1), 7.5), math.radians(-48), math.radians(228)),
], False)
sketch15.addConstraint([
    Sketcher.Constraint("Coincident", 0, 2, 1, 1),
    Sketcher.Constraint("Coincident", 1, 2, 2, 1),
    Sketcher.Constraint("Coincident", 2, 2, 3, 1),
    Sketcher.Constraint("Coincident", 3, 2, 0, 1),
    Sketcher.Constraint("Coincident", 4, 2, 5, 1),
    Sketcher.Constraint("Coincident", 5, 2, 6, 1),
    Sketcher.Constraint("Coincident", 6, 2, 7, 1),
    Sketcher.Constraint("Coincident", 7, 2, 4, 1),
    Sketcher.Constraint("Horizontal", 0),
    Sketcher.Constraint("Vertical", 1),
    Sketcher.Constraint("Vertical", 3),
    Sketcher.Constraint("Vertical", 4),
    Sketcher.Constraint("Horizontal", 5),
    Sketcher.Constraint("Vertical", 6),
    Sketcher.Constraint("Equal", 2, 7),
    Sketcher.Constraint("Symmetric", 2, 3, 7, 3, -2),
    Sketcher.Constraint("Symmetric", 0, 2, 4, 2, -2),
    Sketcher.Constraint("Horizontal", 1, 2, 2, 2),
    Sketcher.Constraint("Horizontal", 2, 2, 6, 2),
    Sketcher.Constraint("Radius", 2, 7.5),
    Sketcher.Constraint("DistanceX", 0, 1, 0, 2, 10.0),
    Sketcher.Constraint("DistanceX", 2, 3, -1, 1, 14.0),
    Sketcher.Constraint("DistanceY", -1, 1, 0, 2, 2.0),
    Sketcher.Constraint("DistanceY", -1, 1, 2, 3, 9.5),
])
pocket6 = body.newObject("PartDesign::Pocket", "Pocket005")
pocket6.Profile = sketch15
pocket6.Length = 2

sketch16 = body.newObject("Sketcher::SketchObject", "Sketch015")
sketch16.AttachmentSupport = (doc.getObject("XZ_Plane"), [""])
sketch16.MapMode = "FlatFace"
sketch16.AttachmentOffset = App.Placement(App.Vector(0, 0, 16), App.Rotation())
sketch16.addGeometry([
    Part.LineSegment(App.Vector(9, 3.9, 0), App.Vector(9, 2, 0)),
    Part.LineSegment(App.Vector(9, 2, 0), App.Vector(19, 2, 0)),
    Part.LineSegment(App.Vector(19, 2, 0), App.Vector(19, 3.9, 0)),
    Part.ArcOfCircle(Part.Circle(App.Vector(14, 9.5, 0), App.Vector(0, 0, 1), 7.5), math.radians(-48), math.radians(228)),
    Part.Circle(App.Vector(14, 9.5, 0), App.Vector(0, 0, 1), 3.5),
    Part.LineSegment(App.Vector(-19, 3.9, 0), App.Vector(-19, 2, 0)),
    Part.LineSegment(App.Vector(-19, 2, 0), App.Vector(-9, 2, 0)),
    Part.LineSegment(App.Vector(-9, 2, 0), App.Vector(-9, 3.9, 0)),
    Part.ArcOfCircle(Part.Circle(App.Vector(-14, 9.5, 0), App.Vector(0, 0, 1), 7.5), math.radians(-48), math.radians(228)),
    Part.Circle(App.Vector(-14, 9.5, 0), App.Vector(0, 0, 1), 3.5),
], False)
sketch16.addConstraint([
    Sketcher.Constraint("Coincident", 0, 2, 1, 1),
    Sketcher.Constraint("Coincident", 1, 2, 2, 1),
    Sketcher.Constraint("Coincident", 2, 2, 3, 1),
    Sketcher.Constraint("Coincident", 3, 2, 0, 1),
    Sketcher.Constraint("Coincident", 5, 2, 6, 1),
    Sketcher.Constraint("Coincident", 6, 2, 7, 1),
    Sketcher.Constraint("Coincident", 7, 2, 8, 1),
    Sketcher.Constraint("Coincident", 8, 2, 5, 1),
    Sketcher.Constraint("Vertical", 0),
    Sketcher.Constraint("Horizontal", 1),
    Sketcher.Constraint("Vertical", 2),
    Sketcher.Constraint("Vertical", 5),
    Sketcher.Constraint("Horizontal", 6),
    Sketcher.Constraint("Vertical", 7),
    Sketcher.Constraint("Coincident", 4, 3, 3, 3),
    Sketcher.Constraint("Coincident", 9, 3, 8, 3),
    Sketcher.Constraint("Equal", 3, 8),
    Sketcher.Constraint("Equal", 4, 9),
    Sketcher.Constraint("Symmetric", 3, 3, 8, 3, -2),
    Sketcher.Constraint("Symmetric", 1, 2, 5, 2, -2),
    Sketcher.Constraint("Horizontal", 2, 2, 3, 2),
    Sketcher.Constraint("Horizontal", 3, 2, 7, 2),
    Sketcher.Constraint("Diameter", 4, 7.0),
    Sketcher.Constraint("Radius", 3, 7.5),
    Sketcher.Constraint("DistanceX", 1, 1, 1, 2, 10.0),
    Sketcher.Constraint("DistanceX", -1, 1, 3, 3, 14.0),
    Sketcher.Constraint("DistanceY", -1, 1, 0, 2, 2.0),
    Sketcher.Constraint("DistanceY", -1, 1, 3, 3, 9.5),
])
pad10 = body.newObject("PartDesign::Pad", "Pad009")
pad10.Profile = sketch16
pad10.Length = 2
pad10.Reversed = True

sketch17 = body.newObject("Sketcher::SketchObject", "Sketch016")
sketch17.AttachmentSupport = (doc.getObject("XY_Plane"), [""])
sketch17.MapMode = "FlatFace"
sketch17.AttachmentOffset = App.Placement(App.Vector(0, 0, 3.5), App.Rotation())
add_polygon(sketch17, [(-21, 50), (-21, 47), (21, 47), (21, 50)])
sketch17.addConstraint([
    Sketcher.Constraint("Vertical", 0),
    Sketcher.Constraint("Horizontal", 1),
    Sketcher.Constraint("Vertical", 2),
    Sketcher.Constraint("Horizontal", 3),
    Sketcher.Constraint("DistanceX", 1, 1, 1, 2, 42.0),
    Sketcher.Constraint("DistanceY", 0, 2, 0, 1, 3.0),
    Sketcher.Constraint("DistanceX", 0, 2, -1, 1, 21.0),
    Sketcher.Constraint("DistanceY", -1, 1, 0, 2, 47.0),
])
pad11 = body.newObject("PartDesign::Pad", "Pad010")
pad11.Profile = sketch17
pad11.Length = 4

sketch18 = body.newObject("Sketcher::SketchObject", "Sketch017")
sketch18.AttachmentSupport = (doc.getObject("XY_Plane"), [""])
sketch18.MapMode = "FlatFace"
add_polygon(sketch18, [(21, 50), (21, -20), (-21, -20), (-21, 50)])
sketch18.addGeometry(Part.Circle(App.Vector(0, -10, 0), App.Vector(0, 0, 1), 1.6), False)
sketch18.addGeometry(Part.ArcOfCircle(Part.Circle(App.Vector(0, -15, 0), App.Vector(0, 0, 1), 22), math.radians(58), math.radians(122)), False)
sketch18.addGeometry(Part.LineSegment(App.Vector(-11.7, 3.7, 0), App.Vector(-9.3, 1.3, 0)), False)
sketch18.addGeometry(Part.ArcOfCircle(Part.Circle(App.Vector(0, -15, 0), App.Vector(0, 0, 1), 18.8), math.radians(60), math.radians(120)), False)
sketch18.addGeometry(Part.LineSegment(App.Vector(9.3, 1.3, 0), App.Vector(11.7, 3.7, 0)), False)
add_polygon(sketch18, [(-15, 20), (15, 20), (15, 47), (-15, 47)])
sketch18.addConstraint([
    Sketcher.Constraint("Coincident", 5, 2, 6, 1),
    Sketcher.Constraint("Coincident", 6, 2, 7, 2),
    Sketcher.Constraint("Coincident", 7, 1, 8, 1),
    Sketcher.Constraint("Coincident", 8, 2, 5, 1),
    Sketcher.Constraint("Vertical", 0),
    Sketcher.Constraint("Horizontal", 1),
    Sketcher.Constraint("Vertical", 2),
    Sketcher.Constraint("Horizontal", 3),
    Sketcher.Constraint("Horizontal", 9),
    Sketcher.Constraint("Vertical", 10),
    Sketcher.Constraint("Horizontal", 11),
    Sketcher.Constraint("Vertical", 12),
    Sketcher.Constraint("Coincident", 7, 3, 5, 3),
    Sketcher.Constraint("Symmetric", 6, 2, 7, 1, -2),
    Sketcher.Constraint("PointOnObject", 4, 3, -2),
    Sketcher.Constraint("Perpendicular", 6, 8),
    Sketcher.Constraint("Horizontal", 5, 2, 8, 2),
    Sketcher.Constraint("Radius", 5, 22.0),
    Sketcher.Constraint("Diameter", 4, 3.2),
    Sketcher.Constraint("Radius", 7, 18.8),
    Sketcher.Constraint("DistanceX", 1, 2, 1, 1, 42.0),
    Sketcher.Constraint("DistanceX", 9, 1, 9, 2, 30.0),
    Sketcher.Constraint("DistanceY", 0, 2, 0, 1, 70.0),
    Sketcher.Constraint("DistanceY", 10, 1, 10, 2, 27.0),
    Sketcher.Constraint("DistanceY", 4, 3, -1, 1, 10.0),
    Sketcher.Constraint("DistanceY", 5, 3, -1, 1, 15.0),
    Sketcher.Constraint("DistanceX", -1, 1, 0, 2, 21.0),
    Sketcher.Constraint("DistanceY", 0, 2, -1, 1, 20.0),
    Sketcher.Constraint("DistanceX", -1, 1, 9, 2, 15.0),
    Sketcher.Constraint("DistanceY", -1, 1, 9, 2, 20.0),
    Sketcher.Constraint("DistanceX", 6, 2, 7, 1, 18.649172),
])
pad12 = body.newObject("PartDesign::Pad", "Pad011")
pad12.Profile = sketch18
pad12.Length = 3
pad12.Reversed = True

sketch19 = body.newObject("Sketcher::SketchObject", "Sketch018")
sketch19.AttachmentSupport = (doc.getObject("XZ_Plane"), [""])
sketch19.MapMode = "FlatFace"
sketch19.AttachmentOffset = App.Placement(App.Vector(0, 0, 16), App.Rotation())
sketch19.addGeometry([
    Part.LineSegment(App.Vector(-20.5, 3.3, 0), App.Vector(-20.5, 0.5, 0)),
    Part.LineSegment(App.Vector(-20.5, 0.5, 0), App.Vector(-7.5, 0.5, 0)),
    Part.LineSegment(App.Vector(-7.5, 0.5, 0), App.Vector(-7.5, 3.3, 0)),
    Part.ArcOfCircle(Part.Circle(App.Vector(-14, 9.5, 0), App.Vector(0, 0, 1), 9), math.radians(-44), math.radians(224)),
    Part.LineSegment(App.Vector(-19, 2, 0), App.Vector(-19, 3.9, 0)),
    Part.ArcOfCircle(Part.Circle(App.Vector(-14, 9.5, 0), App.Vector(0, 0, 1), 7.5), math.radians(-48), math.radians(228)),
    Part.LineSegment(App.Vector(-9, 3.9, 0), App.Vector(-9, 2, 0)),
    Part.LineSegment(App.Vector(-9, 2, 0), App.Vector(-19, 2, 0)),
    Part.LineSegment(App.Vector(7.5, 3.3, 0), App.Vector(7.5, 0.5, 0)),
    Part.LineSegment(App.Vector(7.5, 0.5, 0), App.Vector(20.5, 0.5, 0)),
    Part.LineSegment(App.Vector(20.5, 0.5, 0), App.Vector(20.5, 3.3, 0)),
    Part.ArcOfCircle(Part.Circle(App.Vector(14, 9.5, 0), App.Vector(0, 0, 1), 9), math.radians(-44), math.radians(224)),
    Part.LineSegment(App.Vector(9, 2, 0), App.Vector(9, 3.9, 0)),
    Part.ArcOfCircle(Part.Circle(App.Vector(14, 9.5, 0), App.Vector(0, 0, 1), 7.5), math.radians(-48), math.radians(228)),
    Part.LineSegment(App.Vector(19, 3.9, 0), App.Vector(19, 2, 0)),
    Part.LineSegment(App.Vector(19, 2, 0), App.Vector(9, 2, 0)),
], False)
sketch19.addConstraint([
    Sketcher.Constraint("Coincident", 0, 2, 1, 1),
    Sketcher.Constraint("Coincident", 1, 2, 2, 1),
    Sketcher.Constraint("Coincident", 2, 2, 3, 1),
    Sketcher.Constraint("Coincident", 3, 2, 0, 1),
    Sketcher.Constraint("Coincident", 4, 2, 5, 2),
    Sketcher.Constraint("Coincident", 5, 1, 6, 1),
    Sketcher.Constraint("Coincident", 6, 2, 7, 1),
    Sketcher.Constraint("Coincident", 7, 2, 4, 1),
    Sketcher.Constraint("Coincident", 8, 2, 9, 1),
    Sketcher.Constraint("Coincident", 9, 2, 10, 1),
    Sketcher.Constraint("Coincident", 10, 2, 11, 1),
    Sketcher.Constraint("Coincident", 11, 2, 8, 1),
    Sketcher.Constraint("Coincident", 12, 2, 13, 2),
    Sketcher.Constraint("Coincident", 13, 1, 14, 1),
    Sketcher.Constraint("Coincident", 14, 2, 15, 1),
    Sketcher.Constraint("Coincident", 15, 2, 12, 1),
    Sketcher.Constraint("Vertical", 0),
    Sketcher.Constraint("Horizontal", 1),
    Sketcher.Constraint("Vertical", 2),
    Sketcher.Constraint("Vertical", 4),
    Sketcher.Constraint("Vertical", 6),
    Sketcher.Constraint("Horizontal", 7),
    Sketcher.Constraint("Vertical", 8),
    Sketcher.Constraint("Horizontal", 9),
    Sketcher.Constraint("Vertical", 10),
    Sketcher.Constraint("Vertical", 12),
    Sketcher.Constraint("Vertical", 14),
    Sketcher.Constraint("Horizontal", 15),
    Sketcher.Constraint("Coincident", 5, 3, 3, 3),
    Sketcher.Constraint("Coincident", 13, 3, 11, 3),
    Sketcher.Constraint("Equal", 3, 11),
    Sketcher.Constraint("Equal", 5, 13),
    Sketcher.Constraint("Symmetric", 3, 3, 11, 3, -2),
    Sketcher.Constraint("Symmetric", 1, 2, 8, 2, -2),
    Sketcher.Constraint("Symmetric", 7, 2, 14, 2, -2),
    Sketcher.Constraint("Horizontal", 2, 2, 3, 2),
    Sketcher.Constraint("Horizontal", 4, 2, 5, 1),
    Sketcher.Constraint("Horizontal", 3, 2, 10, 2),
    Sketcher.Constraint("Horizontal", 5, 1, 12, 2),
    Sketcher.Constraint("Radius", 3, 9.0),
    Sketcher.Constraint("Radius", 5, 7.5),
    Sketcher.Constraint("DistanceX", 1, 1, 1, 2, 13.0),
    Sketcher.Constraint("DistanceX", 7, 2, 7, 1, 10.0),
    Sketcher.Constraint("DistanceX", 3, 3, -1, 1, 14.0),
    Sketcher.Constraint("DistanceY", -1, 1, 6, 2, 2.0),
    Sketcher.Constraint("DistanceY", 0, 2, 3, 3, 9.0),
    Sketcher.Constraint("DistanceY", -1, 1, 3, 3, 9.5),
])
pad13 = body.newObject("PartDesign::Pad", "Pad012")
pad13.Profile = sketch19
pad13.Length = 14
pad13.Reversed = True
doc.recompute()

fillet = body.newObject("PartDesign::Fillet", "Fillet")
fillet.Base = (pad13, edges_at(pad13, [
    (21, 50, 2.25),
    (15, 20, -0.5),
    (-21, 50, 2.25),
    (-15, 20, -0.5),
    (-15, 47, -0.5),
    (18, 47, 2),
    (15, 47, -0.5),
    (-18, 47, 2),
    (21, -20, -0.5),
    (-21, -20, -0.5),
]))
fillet.Radius = 2

sketch20 = body.newObject("Sketcher::SketchObject", "Sketch019")
sketch20.AttachmentSupport = (doc.getObject("XY_Plane"), [""])
sketch20.MapMode = "FlatFace"
sketch20.AttachmentOffset = App.Placement(App.Vector(0, 0, 2), App.Rotation())
add_polygon(sketch20, [(-6, 12), (-6, 7), (6, 7), (6, 12)])
sketch20.addConstraint([
    Sketcher.Constraint("Vertical", 0),
    Sketcher.Constraint("Horizontal", 1),
    Sketcher.Constraint("Vertical", 2),
    Sketcher.Constraint("Horizontal", 3),
    Sketcher.Constraint("DistanceX", 1, 1, 1, 2, 12.0),
    Sketcher.Constraint("DistanceY", 0, 2, 0, 1, 5.0),
    Sketcher.Constraint("DistanceX", 0, 2, -1, 1, 6.0),
    Sketcher.Constraint("DistanceY", -1, 1, 0, 2, 7.0),
])
pad14 = body.newObject("PartDesign::Pad", "Pad013")
pad14.Profile = sketch20
pad14.Length = 16

sketch21 = body.newObject("Sketcher::SketchObject", "Sketch020")
sketch21.AttachmentSupport = (doc.getObject("XZ_Plane"), [""])
sketch21.MapMode = "FlatFace"
sketch21.AttachmentOffset = App.Placement(App.Vector(0, 0, -12), App.Rotation())
add_polygon(sketch21, [(-1.5, 11.2), (-1.5, 14.3), (1.6, 14.3), (1.6, 11.2)])
sketch21.addConstraint([
    Sketcher.Constraint("Vertical", 0),
    Sketcher.Constraint("Horizontal", 1),
    Sketcher.Constraint("Vertical", 2),
    Sketcher.Constraint("Horizontal", 3),
    Sketcher.Constraint("Equal", 3, 0),
    Sketcher.Constraint("DistanceX", 1, 1, 1, 2, 3.1),
    Sketcher.Constraint("DistanceX", 0, 2, -1, 1, 1.5),
    Sketcher.Constraint("DistanceY", -1, 1, 0, 2, 14.3),
])
pocket7 = body.newObject("PartDesign::Pocket", "Pocket006")
pocket7.Profile = sketch21
pocket7.Length = 12
pocket7.Reversed = True

doc.recompute()
